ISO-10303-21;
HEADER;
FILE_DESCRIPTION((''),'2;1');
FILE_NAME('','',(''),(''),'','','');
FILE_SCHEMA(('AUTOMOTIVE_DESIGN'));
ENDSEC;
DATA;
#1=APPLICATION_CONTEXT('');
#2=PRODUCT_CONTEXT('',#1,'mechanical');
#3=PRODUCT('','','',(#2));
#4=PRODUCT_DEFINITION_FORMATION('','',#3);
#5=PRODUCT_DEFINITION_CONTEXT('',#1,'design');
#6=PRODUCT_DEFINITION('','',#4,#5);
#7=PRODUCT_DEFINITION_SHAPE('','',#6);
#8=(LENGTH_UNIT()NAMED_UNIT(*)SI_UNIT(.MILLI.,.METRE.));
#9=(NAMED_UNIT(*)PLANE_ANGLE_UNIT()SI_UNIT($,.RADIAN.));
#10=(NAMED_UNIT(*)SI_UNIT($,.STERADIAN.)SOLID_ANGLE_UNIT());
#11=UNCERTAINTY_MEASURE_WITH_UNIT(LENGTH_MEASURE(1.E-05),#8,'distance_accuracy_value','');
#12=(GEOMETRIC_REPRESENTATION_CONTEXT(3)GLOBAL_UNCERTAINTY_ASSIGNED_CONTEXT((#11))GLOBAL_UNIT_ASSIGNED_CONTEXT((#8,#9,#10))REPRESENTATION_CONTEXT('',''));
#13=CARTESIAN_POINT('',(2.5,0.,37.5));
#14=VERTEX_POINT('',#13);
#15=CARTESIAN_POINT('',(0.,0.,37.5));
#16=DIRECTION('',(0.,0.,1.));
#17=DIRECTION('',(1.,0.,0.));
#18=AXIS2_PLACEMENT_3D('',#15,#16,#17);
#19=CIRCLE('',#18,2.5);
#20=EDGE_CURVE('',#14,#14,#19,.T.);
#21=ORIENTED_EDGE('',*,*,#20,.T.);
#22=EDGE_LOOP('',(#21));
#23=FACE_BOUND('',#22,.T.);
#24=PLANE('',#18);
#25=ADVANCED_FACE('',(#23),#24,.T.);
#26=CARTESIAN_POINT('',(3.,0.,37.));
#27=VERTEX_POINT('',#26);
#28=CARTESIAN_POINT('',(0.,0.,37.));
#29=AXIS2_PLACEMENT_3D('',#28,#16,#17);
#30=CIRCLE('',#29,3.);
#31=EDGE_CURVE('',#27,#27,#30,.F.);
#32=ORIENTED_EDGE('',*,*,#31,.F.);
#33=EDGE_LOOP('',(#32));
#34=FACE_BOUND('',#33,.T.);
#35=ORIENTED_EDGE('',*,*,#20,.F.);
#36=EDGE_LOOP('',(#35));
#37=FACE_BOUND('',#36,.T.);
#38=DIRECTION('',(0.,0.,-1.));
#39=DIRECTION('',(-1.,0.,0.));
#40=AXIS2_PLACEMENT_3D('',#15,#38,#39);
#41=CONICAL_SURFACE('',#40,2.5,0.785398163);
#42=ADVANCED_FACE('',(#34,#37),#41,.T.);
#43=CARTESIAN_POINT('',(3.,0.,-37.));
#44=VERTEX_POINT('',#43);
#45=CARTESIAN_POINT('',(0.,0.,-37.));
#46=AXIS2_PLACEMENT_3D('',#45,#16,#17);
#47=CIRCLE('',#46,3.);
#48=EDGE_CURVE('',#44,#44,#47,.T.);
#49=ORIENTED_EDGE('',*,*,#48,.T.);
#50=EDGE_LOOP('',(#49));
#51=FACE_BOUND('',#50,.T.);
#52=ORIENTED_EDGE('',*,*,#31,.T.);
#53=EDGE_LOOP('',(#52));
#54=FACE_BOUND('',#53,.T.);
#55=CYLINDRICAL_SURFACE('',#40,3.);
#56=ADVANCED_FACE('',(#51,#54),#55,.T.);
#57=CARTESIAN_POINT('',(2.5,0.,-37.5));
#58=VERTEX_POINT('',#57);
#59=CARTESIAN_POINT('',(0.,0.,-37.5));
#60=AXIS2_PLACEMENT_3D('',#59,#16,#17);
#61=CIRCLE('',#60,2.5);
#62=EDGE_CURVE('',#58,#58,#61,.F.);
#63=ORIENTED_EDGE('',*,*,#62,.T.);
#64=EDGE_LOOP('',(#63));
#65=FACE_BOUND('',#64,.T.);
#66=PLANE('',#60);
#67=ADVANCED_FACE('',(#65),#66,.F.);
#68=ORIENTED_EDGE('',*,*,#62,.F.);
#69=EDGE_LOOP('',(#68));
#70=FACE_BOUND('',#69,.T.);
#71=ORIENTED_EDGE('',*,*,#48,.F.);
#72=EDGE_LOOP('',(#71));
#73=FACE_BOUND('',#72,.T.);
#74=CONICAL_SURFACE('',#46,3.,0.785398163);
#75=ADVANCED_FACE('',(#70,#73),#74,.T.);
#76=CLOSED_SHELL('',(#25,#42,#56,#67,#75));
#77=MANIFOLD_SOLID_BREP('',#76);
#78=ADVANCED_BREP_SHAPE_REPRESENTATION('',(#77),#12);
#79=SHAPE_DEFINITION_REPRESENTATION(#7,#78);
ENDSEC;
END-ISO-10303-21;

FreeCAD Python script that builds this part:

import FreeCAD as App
import Part
import Sketcher


def edges_at(feature, points):
    """Names of the edges that pass closest to the given points."""
    edges = feature.Shape.Edges
    near = lambda p: min(range(len(edges)), key=lambda i: edges[i].distToShape(Part.Vertex(*p))[0])
    return sorted({f"Edge{near(p) + 1}" for p in points})

doc = App.newDocument("Part")
body = doc.addObject("PartDesign::Body", "Body")

sketch1 = body.newObject("Sketcher::SketchObject", "Sketch")
sketch1.AttachmentSupport = (doc.getObject("XY_Plane"), [""])
sketch1.MapMode = "FlatFace"
sketch1.addGeometry(Part.Circle(App.Vector(0, 0, 0), App.Vector(0, 0, 1), 3), False)
sketch1.addConstraint(Sketcher.Constraint("Coincident", 0, 3, -1, 1))
sketch1.addConstraint(Sketcher.Constraint("Diameter", 0, 6.0))
pad1 = body.newObject("PartDesign::Pad", "Pad")
pad1.Profile = sketch1
pad1.Length = 75
pad1.Midplane = True
doc.recompute()

chamfer = body.newObject("PartDesign::Chamfer", "Chamfer")
chamfer.Base = (pad1, edges_at(pad1, [(-3, 0, -37.5), (-3, 0, 37.5)]))
chamfer.Size = 0.5

doc.recompute()
